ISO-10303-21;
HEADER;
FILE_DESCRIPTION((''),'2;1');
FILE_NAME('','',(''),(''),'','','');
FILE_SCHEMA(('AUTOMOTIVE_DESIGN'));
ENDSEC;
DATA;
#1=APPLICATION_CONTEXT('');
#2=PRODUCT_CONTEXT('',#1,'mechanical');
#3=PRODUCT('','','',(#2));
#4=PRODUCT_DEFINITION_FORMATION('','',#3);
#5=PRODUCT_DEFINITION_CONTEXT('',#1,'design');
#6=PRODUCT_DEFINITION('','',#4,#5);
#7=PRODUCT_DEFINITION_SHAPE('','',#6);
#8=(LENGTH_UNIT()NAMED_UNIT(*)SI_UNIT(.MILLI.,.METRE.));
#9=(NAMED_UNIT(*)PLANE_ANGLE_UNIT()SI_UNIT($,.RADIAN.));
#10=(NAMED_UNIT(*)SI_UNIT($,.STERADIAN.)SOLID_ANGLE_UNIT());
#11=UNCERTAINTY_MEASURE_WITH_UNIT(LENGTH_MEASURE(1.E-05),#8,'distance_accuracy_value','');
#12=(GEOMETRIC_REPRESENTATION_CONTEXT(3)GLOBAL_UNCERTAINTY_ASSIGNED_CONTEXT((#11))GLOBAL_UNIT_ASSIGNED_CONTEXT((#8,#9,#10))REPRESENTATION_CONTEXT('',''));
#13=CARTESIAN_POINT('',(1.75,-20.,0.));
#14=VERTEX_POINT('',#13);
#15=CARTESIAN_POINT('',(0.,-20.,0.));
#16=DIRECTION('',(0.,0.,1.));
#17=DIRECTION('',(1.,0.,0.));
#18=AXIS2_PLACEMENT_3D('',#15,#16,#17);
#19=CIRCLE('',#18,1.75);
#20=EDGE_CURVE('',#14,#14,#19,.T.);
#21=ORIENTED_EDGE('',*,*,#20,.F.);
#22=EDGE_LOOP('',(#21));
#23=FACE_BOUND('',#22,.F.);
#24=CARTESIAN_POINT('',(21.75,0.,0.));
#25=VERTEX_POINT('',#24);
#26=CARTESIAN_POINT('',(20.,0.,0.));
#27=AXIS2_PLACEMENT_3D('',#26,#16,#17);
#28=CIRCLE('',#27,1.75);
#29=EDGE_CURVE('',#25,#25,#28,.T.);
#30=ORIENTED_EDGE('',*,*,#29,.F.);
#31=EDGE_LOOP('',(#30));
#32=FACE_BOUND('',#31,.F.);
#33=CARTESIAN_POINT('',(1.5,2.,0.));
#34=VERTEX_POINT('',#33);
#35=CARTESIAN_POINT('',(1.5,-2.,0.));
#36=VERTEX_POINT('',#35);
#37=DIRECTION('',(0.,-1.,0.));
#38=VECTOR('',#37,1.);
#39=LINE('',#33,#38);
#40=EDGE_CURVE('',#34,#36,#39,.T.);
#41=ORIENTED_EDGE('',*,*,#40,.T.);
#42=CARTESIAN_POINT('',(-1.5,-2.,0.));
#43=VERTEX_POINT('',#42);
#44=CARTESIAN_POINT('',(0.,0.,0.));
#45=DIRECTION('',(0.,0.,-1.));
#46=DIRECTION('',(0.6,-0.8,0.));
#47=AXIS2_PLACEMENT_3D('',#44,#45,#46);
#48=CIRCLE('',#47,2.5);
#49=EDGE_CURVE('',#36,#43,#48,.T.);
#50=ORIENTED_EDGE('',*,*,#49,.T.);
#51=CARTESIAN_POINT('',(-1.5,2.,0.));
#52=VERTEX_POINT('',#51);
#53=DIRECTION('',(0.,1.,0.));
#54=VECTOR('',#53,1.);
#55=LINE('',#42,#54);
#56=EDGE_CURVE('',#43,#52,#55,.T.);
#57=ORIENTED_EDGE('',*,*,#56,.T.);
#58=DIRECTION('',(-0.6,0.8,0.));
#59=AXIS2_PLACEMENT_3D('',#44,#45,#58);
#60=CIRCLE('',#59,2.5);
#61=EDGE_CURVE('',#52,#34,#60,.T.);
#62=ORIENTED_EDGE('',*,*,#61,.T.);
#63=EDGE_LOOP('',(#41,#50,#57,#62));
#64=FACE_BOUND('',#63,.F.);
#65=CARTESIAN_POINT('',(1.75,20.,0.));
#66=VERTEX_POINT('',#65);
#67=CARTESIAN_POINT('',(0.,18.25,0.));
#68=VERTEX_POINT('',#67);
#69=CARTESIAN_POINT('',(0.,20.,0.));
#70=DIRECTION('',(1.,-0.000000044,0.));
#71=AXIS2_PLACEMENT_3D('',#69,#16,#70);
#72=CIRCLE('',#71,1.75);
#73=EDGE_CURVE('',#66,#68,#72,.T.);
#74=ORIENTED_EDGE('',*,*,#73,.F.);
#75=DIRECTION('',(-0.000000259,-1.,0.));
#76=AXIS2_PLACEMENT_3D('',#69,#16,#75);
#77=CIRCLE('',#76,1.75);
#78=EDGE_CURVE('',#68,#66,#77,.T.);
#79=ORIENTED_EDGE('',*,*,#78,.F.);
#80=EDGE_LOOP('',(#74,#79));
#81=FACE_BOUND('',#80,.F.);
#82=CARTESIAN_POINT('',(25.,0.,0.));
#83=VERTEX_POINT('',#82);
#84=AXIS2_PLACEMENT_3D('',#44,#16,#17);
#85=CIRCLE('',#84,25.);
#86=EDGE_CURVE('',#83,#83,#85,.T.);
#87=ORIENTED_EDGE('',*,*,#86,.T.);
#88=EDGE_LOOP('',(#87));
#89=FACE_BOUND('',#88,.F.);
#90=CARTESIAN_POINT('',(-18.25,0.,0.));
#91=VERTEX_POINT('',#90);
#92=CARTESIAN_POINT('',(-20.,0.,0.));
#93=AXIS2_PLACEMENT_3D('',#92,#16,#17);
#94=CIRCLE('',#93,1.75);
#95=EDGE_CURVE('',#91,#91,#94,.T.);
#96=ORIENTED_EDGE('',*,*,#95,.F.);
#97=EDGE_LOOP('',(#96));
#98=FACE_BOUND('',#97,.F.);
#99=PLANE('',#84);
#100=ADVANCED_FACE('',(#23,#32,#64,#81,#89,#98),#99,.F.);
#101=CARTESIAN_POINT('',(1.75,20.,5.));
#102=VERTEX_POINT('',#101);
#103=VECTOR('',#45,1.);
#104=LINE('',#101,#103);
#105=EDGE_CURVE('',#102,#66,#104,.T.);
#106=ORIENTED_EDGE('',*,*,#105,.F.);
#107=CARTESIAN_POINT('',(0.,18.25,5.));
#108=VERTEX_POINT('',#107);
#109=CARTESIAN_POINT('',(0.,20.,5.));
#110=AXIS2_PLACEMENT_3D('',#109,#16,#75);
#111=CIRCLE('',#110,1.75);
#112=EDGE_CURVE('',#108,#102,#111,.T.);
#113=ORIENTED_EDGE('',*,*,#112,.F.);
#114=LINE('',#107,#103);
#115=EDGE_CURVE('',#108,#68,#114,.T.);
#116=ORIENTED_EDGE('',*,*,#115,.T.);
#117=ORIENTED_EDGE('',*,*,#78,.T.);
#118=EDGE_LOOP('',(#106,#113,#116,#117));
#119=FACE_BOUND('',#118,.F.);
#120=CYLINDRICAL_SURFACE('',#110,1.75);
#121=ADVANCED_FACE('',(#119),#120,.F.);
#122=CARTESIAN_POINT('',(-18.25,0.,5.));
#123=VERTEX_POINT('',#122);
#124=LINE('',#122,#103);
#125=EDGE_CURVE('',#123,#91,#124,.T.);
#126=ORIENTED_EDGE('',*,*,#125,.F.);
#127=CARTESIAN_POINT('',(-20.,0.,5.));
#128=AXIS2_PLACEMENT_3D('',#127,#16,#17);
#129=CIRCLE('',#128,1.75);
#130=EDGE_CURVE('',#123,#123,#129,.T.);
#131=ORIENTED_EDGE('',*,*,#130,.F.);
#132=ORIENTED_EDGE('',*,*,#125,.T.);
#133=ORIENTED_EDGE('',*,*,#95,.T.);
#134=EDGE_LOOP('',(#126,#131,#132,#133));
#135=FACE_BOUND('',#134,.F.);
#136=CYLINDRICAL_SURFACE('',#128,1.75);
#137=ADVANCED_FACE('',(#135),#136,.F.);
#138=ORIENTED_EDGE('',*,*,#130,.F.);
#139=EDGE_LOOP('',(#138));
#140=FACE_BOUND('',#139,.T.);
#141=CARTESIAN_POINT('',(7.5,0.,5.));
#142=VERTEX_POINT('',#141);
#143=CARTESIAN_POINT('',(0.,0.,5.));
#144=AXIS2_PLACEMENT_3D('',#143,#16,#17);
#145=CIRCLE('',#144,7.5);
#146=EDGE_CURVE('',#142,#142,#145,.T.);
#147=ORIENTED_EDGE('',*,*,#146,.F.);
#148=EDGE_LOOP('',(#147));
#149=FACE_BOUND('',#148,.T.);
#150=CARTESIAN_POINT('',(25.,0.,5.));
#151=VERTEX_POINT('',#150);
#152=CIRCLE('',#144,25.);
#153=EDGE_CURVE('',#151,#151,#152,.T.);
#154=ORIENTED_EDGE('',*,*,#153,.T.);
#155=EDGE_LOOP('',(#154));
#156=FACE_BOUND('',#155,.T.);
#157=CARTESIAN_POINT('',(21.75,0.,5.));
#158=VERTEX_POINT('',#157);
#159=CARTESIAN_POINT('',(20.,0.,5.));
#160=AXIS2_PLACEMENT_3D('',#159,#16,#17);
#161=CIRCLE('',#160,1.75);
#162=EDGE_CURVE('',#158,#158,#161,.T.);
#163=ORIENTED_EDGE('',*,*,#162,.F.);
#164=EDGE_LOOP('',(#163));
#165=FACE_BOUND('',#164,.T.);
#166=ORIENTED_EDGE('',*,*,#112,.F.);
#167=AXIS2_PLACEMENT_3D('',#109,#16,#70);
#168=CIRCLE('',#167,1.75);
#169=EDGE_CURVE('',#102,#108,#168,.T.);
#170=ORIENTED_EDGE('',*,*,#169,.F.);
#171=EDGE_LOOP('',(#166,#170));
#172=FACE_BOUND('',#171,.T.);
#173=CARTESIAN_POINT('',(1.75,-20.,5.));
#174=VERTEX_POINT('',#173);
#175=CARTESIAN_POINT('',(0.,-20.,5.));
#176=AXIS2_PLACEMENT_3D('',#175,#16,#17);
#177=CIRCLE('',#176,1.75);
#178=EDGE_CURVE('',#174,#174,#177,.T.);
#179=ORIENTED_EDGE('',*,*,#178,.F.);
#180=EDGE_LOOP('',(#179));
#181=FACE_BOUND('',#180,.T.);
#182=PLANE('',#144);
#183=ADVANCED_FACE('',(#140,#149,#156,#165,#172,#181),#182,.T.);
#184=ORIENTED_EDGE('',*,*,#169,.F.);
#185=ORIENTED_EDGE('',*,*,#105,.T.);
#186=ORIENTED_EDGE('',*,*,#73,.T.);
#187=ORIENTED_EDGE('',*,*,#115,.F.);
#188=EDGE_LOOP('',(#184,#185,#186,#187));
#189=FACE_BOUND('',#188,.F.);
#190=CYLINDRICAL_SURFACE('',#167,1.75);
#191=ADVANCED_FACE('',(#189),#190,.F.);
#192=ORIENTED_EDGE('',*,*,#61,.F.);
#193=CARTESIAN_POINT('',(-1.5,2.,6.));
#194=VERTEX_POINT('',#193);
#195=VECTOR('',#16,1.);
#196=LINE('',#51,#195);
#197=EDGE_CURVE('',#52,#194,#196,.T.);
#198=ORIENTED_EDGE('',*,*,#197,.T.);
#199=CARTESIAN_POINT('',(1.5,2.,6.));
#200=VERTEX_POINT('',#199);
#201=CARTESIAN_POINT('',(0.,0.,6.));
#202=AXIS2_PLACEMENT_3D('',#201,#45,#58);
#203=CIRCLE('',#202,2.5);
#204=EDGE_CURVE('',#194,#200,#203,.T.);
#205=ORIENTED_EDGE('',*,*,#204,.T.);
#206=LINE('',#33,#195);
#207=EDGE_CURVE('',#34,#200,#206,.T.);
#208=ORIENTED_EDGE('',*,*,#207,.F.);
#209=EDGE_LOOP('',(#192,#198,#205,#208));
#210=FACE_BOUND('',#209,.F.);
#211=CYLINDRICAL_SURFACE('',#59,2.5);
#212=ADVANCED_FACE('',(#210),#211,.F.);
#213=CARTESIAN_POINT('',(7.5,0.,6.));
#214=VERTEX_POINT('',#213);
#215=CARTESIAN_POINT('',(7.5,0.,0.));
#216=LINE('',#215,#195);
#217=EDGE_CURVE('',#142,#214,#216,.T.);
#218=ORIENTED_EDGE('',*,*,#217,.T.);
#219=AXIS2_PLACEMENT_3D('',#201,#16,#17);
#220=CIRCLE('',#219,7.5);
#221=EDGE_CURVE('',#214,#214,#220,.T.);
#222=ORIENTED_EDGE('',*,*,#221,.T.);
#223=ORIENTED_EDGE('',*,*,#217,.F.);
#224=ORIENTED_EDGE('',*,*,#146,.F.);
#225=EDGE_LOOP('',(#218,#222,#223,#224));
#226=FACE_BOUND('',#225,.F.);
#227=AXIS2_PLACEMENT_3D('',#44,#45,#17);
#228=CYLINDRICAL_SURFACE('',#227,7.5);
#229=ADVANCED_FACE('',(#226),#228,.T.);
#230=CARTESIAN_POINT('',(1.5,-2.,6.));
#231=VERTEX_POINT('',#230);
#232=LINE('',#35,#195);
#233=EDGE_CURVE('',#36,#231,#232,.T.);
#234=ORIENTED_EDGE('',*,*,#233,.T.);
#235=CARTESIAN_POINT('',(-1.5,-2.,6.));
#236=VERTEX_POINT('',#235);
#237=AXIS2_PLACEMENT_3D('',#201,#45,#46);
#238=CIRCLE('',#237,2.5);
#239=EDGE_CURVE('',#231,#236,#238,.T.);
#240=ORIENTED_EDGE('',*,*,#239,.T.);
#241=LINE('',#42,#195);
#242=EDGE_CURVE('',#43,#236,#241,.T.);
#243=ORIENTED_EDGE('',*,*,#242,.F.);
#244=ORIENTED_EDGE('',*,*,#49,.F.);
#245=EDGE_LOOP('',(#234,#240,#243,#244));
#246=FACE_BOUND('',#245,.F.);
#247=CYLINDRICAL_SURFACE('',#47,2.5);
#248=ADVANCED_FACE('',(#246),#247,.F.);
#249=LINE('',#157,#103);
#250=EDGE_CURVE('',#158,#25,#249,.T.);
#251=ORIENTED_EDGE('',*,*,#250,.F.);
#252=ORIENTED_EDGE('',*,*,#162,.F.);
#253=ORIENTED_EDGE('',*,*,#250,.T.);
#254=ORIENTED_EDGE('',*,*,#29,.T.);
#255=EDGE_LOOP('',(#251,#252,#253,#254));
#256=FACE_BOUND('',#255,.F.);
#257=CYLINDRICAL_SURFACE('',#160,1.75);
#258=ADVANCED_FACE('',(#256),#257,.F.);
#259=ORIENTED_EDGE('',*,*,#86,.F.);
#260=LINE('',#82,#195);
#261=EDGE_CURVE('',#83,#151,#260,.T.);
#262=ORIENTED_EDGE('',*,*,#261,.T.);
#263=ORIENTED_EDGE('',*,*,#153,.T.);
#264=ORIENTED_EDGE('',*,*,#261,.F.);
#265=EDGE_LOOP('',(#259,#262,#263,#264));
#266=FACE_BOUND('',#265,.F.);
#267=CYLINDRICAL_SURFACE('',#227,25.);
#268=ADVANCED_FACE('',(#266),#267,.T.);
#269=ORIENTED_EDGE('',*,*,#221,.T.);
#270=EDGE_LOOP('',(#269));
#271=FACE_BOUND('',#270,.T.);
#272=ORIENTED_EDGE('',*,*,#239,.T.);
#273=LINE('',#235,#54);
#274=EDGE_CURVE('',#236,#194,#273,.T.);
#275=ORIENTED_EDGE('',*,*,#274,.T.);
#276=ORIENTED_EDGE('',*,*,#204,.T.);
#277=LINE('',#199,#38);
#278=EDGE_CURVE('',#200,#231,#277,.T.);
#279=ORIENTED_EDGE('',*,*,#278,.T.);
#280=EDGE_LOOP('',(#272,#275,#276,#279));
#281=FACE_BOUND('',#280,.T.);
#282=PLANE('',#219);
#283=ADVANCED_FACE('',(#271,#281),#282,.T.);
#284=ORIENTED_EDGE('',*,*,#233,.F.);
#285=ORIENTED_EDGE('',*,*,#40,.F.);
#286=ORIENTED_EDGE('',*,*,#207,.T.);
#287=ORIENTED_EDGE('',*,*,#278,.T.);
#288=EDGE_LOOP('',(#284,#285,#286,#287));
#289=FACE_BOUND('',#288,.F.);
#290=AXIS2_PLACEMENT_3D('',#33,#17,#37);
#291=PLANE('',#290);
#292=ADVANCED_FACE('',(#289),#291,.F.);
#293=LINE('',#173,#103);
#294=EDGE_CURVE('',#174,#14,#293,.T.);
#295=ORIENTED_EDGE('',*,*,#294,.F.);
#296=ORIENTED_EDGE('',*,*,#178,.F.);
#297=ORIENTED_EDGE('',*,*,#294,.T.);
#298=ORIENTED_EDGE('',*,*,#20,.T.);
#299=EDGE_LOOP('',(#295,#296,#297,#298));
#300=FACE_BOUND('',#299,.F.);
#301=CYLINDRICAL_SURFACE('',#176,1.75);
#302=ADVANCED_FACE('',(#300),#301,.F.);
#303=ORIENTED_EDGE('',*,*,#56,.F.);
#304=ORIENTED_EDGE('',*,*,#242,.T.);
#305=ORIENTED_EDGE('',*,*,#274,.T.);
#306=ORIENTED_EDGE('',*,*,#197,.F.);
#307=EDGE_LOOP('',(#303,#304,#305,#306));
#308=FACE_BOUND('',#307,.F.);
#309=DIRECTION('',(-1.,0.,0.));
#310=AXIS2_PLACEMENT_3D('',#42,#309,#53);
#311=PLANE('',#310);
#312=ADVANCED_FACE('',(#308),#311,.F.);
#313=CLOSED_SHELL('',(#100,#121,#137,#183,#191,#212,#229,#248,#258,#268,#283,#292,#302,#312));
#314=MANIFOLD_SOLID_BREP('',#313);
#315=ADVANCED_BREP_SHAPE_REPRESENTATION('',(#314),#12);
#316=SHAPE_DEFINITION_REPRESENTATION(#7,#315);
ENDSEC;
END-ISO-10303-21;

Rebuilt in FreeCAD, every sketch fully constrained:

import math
import FreeCAD as App
import Part
import Sketcher

V = App.Vector
Q = App.Units.Quantity

doc = App.newDocument("Part")
params = doc.addObject("Spreadsheet::Sheet", "Params")
for row, (alias, value) in enumerate([
    ("sketch1_diameter", "50 mm"),
    ("sketch1_diameter2", "15 mm"),
    ("pad1_length", "5 mm"),
    ("sketch2_diameter", "15 mm"),
    ("sketch2_radius", "2.5 mm"),
    ("sketch2_height", "4 mm"),
    ("pad2_length", "6 mm"),
    ("sketch3_diameter", "3.5 mm"),
    ("pocket1_length", "5 mm"),
], start=1):
    params.set(f"A{row}", alias)
    params.set(f"B{row}", "=" + value)
    params.setAlias(f"B{row}", alias)

body = doc.addObject("PartDesign::Body", "Body")

sketch1 = body.newObject("Sketcher::SketchObject", "Sketch")
sketch1.AttachmentSupport = (doc.getObject("XY_Plane"), [""])
sketch1.MapMode = "FlatFace"
sketch1.addGeometry([
    Part.Circle(V(0, 0, 0), V(0, 0, 1), 25),
    Part.Circle(V(0, 0, 0), V(0, 0, 1), 7.5),
], False)
sketch1.addConstraint([
    Sketcher.Constraint("Coincident", 0, 3, -1, 1),
    Sketcher.Constraint("Coincident", 1, 3, -1, 1),
    Sketcher.Constraint("Diameter", 0, Q("50 mm")),
    Sketcher.Constraint("Diameter", 1, Q("15 mm")),
])
sketch1.setExpression("Constraints[2]", "Params.sketch1_diameter")
sketch1.setExpression("Constraints[3]", "Params.sketch1_diameter2")
pad1 = body.newObject("PartDesign::Pad", "Pad")
pad1.Profile = sketch1
pad1.setExpression("Length", "Params.pad1_length")

sketch2 = body.newObject("Sketcher::SketchObject", "Sketch001")
sketch2.AttachmentSupport = (doc.getObject("XY_Plane"), [""])
sketch2.MapMode = "FlatFace"
sketch2.addGeometry([
    Part.Circle(V(0, 0, 0), V(0, 0, 1), 7.5),
    Part.LineSegment(V(1.5, 2, 0), V(1.5, -2, 0)),
    Part.ArcOfCircle(Part.Circle(V(0, 0, 0), V(0, 0, 1), 2.5), math.radians(-126.869898), math.radians(-53.130102)),
    Part.LineSegment(V(-1.5, -2, 0), V(-1.5, 2, 0)),
    Part.ArcOfCircle(Part.Circle(V(0, 0, 0), V(0, 0, 1), 2.5), math.radians(53.130102), math.radians(126.869898)),
], False)
sketch2.addConstraint([
    Sketcher.Constraint("Coincident", 1, 2, 2, 2),
    Sketcher.Constraint("Coincident", 2, 1, 3, 1),
    Sketcher.Constraint("Coincident", 3, 2, 4, 2),
    Sketcher.Constraint("Coincident", 4, 1, 1, 1),
    Sketcher.Constraint("Vertical", 1),
    Sketcher.Constraint("Vertical", 3),
    Sketcher.Constraint("Coincident", 0, 3, -1, 1),
    Sketcher.Constraint("Coincident", 2, 3, -1, 1),
    Sketcher.Constraint("Coincident", 4, 3, -1, 1),
    Sketcher.Constraint("Equal", 2, 4),
    Sketcher.Constraint("Horizontal", 1, 2, 2, 1),
    Sketcher.Constraint("Diameter", 0, Q("15 mm")),
    Sketcher.Constraint("Radius", 2, Q("2.5 mm")),
    Sketcher.Constraint("DistanceY", 1, 2, 1, 1, Q("4 mm")),
])
sketch2.setExpression("Constraints[11]", "Params.sketch2_diameter")
sketch2.setExpression("Constraints[12]", "Params.sketch2_radius")
sketch2.setExpression("Constraints[13]", "Params.sketch2_height")
pad2 = body.newObject("PartDesign::Pad", "Pad001")
pad2.Profile = sketch2
pad2.setExpression("Length", "Params.pad2_length")

sketch3 = body.newObject("Sketcher::SketchObject", "Sketch002")
sketch3.AttachmentSupport = (doc.getObject("XY_Plane"), [""])
sketch3.MapMode = "FlatFace"
sketch3.AttachmentOffset = App.Placement(V(0, 0, 5), App.Rotation())
sketch3.addGeometry([
    Part.ArcOfCircle(Part.Circle(V(0, 20, 0), V(0, 0, 1), 1.75), math.radians(-90.000015), math.radians(0.000015)),
    Part.ArcOfCircle(Part.Circle(V(0, 20, 0), V(0, 0, 1), 1.75), math.radians(-0.000003), math.radians(270.000003)),
    Part.Circle(V(20, 0, 0), V(0, 0, 1), 1.75),
    Part.Circle(V(0, -20, 0), V(0, 0, 1), 1.75),
    Part.Circle(V(-20, 0, 0), V(0, 0, 1), 1.75),
], False)
sketch3.addConstraint([
    Sketcher.Constraint("Tangent", 0, 1, 1, 2),
    Sketcher.Constraint("Coincident", 1, 1, 0, 2),
    Sketcher.Constraint("Equal", 1, 2),
    Sketcher.Constraint("Equal", 2, 3),
    Sketcher.Constraint("Equal", 3, 4),
    Sketcher.Constraint("Symmetric", 0, 3, 3, 3, -1, 1),
    Sketcher.Constraint("Symmetric", 2, 3, 4, 3, -1, 1),
    Sketcher.Constraint("PointOnObject", 0, 3, -2),
    Sketcher.Constraint("PointOnObject", 2, 3, -1),
    Sketcher.Constraint("PointOnObject", 0, 1, -2),
    Sketcher.Constraint("Horizontal", 0, 3, 1, 1),
    Sketcher.Constraint("Diameter", 2, Q("3.5 mm")),
    Sketcher.Constraint("DistanceY", -1, 1, 0, 3, Q("20 mm")),
    Sketcher.Constraint("DistanceX", -1, 1, 2, 3, Q("20 mm")),
])
sketch3.setExpression("Constraints[11]", "Params.sketch3_diameter")
pocket1 = body.newObject("PartDesign::Pocket", "Pocket")
pocket1.Profile = sketch3
pocket1.setExpression("Length", "Params.pocket1_length")

doc.recompute()
